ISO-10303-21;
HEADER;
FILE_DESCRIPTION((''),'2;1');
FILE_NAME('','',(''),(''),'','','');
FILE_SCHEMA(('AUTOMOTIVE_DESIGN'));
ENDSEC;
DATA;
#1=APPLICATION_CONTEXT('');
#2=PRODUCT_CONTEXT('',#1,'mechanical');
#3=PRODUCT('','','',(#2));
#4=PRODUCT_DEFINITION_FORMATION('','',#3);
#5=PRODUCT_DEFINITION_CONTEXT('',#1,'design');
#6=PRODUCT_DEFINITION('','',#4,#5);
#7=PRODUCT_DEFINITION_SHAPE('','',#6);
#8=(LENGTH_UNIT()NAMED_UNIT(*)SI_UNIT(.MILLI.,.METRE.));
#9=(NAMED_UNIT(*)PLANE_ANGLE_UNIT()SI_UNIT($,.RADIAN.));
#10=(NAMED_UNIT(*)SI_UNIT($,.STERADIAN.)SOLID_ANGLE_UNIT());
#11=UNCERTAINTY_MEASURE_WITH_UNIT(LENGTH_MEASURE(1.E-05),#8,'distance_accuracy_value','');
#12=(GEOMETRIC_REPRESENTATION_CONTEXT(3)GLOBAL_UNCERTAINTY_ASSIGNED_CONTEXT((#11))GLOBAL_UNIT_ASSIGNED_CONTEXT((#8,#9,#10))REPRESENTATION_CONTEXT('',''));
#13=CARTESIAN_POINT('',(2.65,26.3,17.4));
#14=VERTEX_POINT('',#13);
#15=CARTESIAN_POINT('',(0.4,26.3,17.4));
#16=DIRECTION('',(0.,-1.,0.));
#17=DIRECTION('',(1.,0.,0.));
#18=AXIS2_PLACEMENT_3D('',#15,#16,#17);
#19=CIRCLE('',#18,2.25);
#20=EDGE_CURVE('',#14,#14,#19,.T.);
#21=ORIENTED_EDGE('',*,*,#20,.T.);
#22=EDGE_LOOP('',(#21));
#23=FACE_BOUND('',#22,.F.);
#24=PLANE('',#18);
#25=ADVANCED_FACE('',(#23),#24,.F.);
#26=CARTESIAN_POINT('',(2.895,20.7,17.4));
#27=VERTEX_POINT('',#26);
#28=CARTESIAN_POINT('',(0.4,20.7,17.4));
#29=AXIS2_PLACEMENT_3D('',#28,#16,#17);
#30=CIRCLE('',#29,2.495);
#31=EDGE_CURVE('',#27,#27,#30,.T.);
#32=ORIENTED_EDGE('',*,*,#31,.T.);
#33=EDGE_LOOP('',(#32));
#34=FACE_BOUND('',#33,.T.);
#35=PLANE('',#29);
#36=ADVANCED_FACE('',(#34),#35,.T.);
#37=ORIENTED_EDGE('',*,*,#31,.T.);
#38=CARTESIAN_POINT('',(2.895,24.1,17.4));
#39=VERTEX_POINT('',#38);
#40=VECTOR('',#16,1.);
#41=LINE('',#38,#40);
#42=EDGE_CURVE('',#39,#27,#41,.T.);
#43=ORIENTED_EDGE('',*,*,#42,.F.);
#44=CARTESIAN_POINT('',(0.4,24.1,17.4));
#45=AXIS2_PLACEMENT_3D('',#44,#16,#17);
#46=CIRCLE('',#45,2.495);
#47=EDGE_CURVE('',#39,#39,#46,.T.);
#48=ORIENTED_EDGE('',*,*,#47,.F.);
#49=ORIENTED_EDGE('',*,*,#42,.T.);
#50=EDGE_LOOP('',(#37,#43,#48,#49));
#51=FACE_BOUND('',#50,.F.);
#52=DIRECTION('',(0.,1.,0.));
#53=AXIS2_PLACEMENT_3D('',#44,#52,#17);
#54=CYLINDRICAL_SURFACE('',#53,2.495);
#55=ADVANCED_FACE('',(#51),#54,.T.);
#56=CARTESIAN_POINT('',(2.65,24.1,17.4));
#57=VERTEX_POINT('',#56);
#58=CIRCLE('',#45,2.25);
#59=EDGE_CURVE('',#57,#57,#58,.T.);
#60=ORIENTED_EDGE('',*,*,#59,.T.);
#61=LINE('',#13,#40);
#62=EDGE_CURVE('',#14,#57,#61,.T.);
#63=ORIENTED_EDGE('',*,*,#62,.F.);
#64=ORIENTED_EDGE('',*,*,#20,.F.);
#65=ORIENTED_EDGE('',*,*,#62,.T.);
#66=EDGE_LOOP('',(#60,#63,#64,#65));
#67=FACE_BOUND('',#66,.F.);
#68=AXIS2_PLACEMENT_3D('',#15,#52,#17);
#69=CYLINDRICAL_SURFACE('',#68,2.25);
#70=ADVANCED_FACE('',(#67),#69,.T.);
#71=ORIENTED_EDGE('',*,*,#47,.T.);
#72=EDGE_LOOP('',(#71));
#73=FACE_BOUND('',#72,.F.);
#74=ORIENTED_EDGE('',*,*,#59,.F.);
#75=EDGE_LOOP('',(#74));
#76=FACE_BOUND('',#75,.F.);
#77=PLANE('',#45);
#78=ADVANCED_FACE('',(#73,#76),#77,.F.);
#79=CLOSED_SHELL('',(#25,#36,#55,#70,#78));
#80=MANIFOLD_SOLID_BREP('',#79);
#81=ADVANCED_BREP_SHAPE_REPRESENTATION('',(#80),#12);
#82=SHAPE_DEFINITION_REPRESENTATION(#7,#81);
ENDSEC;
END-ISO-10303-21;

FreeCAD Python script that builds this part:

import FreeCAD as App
import Part
import Sketcher
from FreeCAD import Vector
Q = App.Units.Quantity

doc = App.newDocument("Part")
body = doc.addObject("PartDesign::Body", "Body")

sketch1 = body.newObject("Sketcher::SketchObject", "Sketch")
sketch1.AttachmentSupport = (doc.getObject("XY_Plane"), [""])
sketch1.MapMode = "FlatFace"
sketch1.addGeometry(Part.Circle(Vector(0, 0, 0), Vector(0, 0, 1), 2.25), False)
sketch1.addConstraint([
    Sketcher.Constraint("Coincident", 0, 3, -1, 1),
    Sketcher.Constraint("Diameter", 0, Q("4.5 mm")),
])
pad1 = body.newObject("PartDesign::Pad", "Pad")
pad1.Profile = sketch1
pad1.Length = 2.2

sketch2 = body.newObject("Sketcher::SketchObject", "Sketch001")
sketch2.AttachmentSupport = (doc.getObject("XY_Plane"), [""])
sketch2.MapMode = "FlatFace"
sketch2.AttachmentOffset = App.Placement(Vector(0, 0, 2.2), App.Rotation())
sketch2.addGeometry(Part.Circle(Vector(0, 0, 0), Vector(0, 0, 1), 2.495), False)
sketch2.addConstraint([
    Sketcher.Constraint("Coincident", 0, 3, -1, 1),
    Sketcher.Constraint("Diameter", 0, Q("4.99 mm")),
])
pad2 = body.newObject("PartDesign::Pad", "Pad001")
pad2.Profile = sketch2
pad2.Length = 3.4

sketch3 = body.newObject("Sketcher::SketchObject", "Sketch002")
sketch3.AttachmentSupport = (doc.getObject("XY_Plane"), [""])
sketch3.MapMode = "FlatFace"
sketch3.AttachmentOffset = App.Placement(Vector(0, 0, 5.6), App.Rotation())
sketch3.addGeometry([
    Part.LineSegment(Vector(3.3, 0.172946, 0), Vector(3, 0, 0)),
    Part.LineSegment(Vector(3, 0, 0), Vector(3.3, -0.172946, 0)),
    Part.LineSegment(Vector(3.3, -0.172946, 0), Vector(3.3, 0.172946, 0)),
], False)
sketch3.addConstraint([
    Sketcher.Constraint("Coincident", 0, 2, 1, 1),
    Sketcher.Constraint("Coincident", 1, 2, 2, 1),
    Sketcher.Constraint("Coincident", 2, 2, 0, 1),
    Sketcher.Constraint("Vertical", 2),
    Sketcher.Constraint("PointOnObject", 0, 2, -1),
    Sketcher.Constraint("Equal", 0, 1),
    Sketcher.Constraint("DistanceX", -1, 1, 0, 2, Q("3 mm")),
    Sketcher.Constraint("DistanceX", -1, 1, 1, 2, Q("3.3 mm")),
    Sketcher.Constraint("Distance", 0, Q("0.346281 mm")),
])
pocket1 = body.newObject("PartDesign::Pocket", "Pocket")
pocket1.Profile = sketch3
pocket1.Length = 4.4
doc.recompute()

polarpattern = body.newObject("PartDesign::PolarPattern", "PolarPattern")
polarpattern.Originals = [pocket1]
polarpattern.Axis = (doc.getObject("Z_Axis"), [""])
polarpattern.Angle = 360
polarpattern.Occurrences = 80
body.Tip = polarpattern
body2 = doc.addObject("PartDesign::Body", "Body001")
doc.recompute()

body.Placement = App.Placement(Vector(0.4, 26.3, 17.4), App.Rotation(Vector(1, 0, 0), 90))
boolean = body2.newObject("PartDesign::Boolean", "Boolean")
boolean.Type = "Fuse"
boolean.addObjects([body])

doc.recompute()
